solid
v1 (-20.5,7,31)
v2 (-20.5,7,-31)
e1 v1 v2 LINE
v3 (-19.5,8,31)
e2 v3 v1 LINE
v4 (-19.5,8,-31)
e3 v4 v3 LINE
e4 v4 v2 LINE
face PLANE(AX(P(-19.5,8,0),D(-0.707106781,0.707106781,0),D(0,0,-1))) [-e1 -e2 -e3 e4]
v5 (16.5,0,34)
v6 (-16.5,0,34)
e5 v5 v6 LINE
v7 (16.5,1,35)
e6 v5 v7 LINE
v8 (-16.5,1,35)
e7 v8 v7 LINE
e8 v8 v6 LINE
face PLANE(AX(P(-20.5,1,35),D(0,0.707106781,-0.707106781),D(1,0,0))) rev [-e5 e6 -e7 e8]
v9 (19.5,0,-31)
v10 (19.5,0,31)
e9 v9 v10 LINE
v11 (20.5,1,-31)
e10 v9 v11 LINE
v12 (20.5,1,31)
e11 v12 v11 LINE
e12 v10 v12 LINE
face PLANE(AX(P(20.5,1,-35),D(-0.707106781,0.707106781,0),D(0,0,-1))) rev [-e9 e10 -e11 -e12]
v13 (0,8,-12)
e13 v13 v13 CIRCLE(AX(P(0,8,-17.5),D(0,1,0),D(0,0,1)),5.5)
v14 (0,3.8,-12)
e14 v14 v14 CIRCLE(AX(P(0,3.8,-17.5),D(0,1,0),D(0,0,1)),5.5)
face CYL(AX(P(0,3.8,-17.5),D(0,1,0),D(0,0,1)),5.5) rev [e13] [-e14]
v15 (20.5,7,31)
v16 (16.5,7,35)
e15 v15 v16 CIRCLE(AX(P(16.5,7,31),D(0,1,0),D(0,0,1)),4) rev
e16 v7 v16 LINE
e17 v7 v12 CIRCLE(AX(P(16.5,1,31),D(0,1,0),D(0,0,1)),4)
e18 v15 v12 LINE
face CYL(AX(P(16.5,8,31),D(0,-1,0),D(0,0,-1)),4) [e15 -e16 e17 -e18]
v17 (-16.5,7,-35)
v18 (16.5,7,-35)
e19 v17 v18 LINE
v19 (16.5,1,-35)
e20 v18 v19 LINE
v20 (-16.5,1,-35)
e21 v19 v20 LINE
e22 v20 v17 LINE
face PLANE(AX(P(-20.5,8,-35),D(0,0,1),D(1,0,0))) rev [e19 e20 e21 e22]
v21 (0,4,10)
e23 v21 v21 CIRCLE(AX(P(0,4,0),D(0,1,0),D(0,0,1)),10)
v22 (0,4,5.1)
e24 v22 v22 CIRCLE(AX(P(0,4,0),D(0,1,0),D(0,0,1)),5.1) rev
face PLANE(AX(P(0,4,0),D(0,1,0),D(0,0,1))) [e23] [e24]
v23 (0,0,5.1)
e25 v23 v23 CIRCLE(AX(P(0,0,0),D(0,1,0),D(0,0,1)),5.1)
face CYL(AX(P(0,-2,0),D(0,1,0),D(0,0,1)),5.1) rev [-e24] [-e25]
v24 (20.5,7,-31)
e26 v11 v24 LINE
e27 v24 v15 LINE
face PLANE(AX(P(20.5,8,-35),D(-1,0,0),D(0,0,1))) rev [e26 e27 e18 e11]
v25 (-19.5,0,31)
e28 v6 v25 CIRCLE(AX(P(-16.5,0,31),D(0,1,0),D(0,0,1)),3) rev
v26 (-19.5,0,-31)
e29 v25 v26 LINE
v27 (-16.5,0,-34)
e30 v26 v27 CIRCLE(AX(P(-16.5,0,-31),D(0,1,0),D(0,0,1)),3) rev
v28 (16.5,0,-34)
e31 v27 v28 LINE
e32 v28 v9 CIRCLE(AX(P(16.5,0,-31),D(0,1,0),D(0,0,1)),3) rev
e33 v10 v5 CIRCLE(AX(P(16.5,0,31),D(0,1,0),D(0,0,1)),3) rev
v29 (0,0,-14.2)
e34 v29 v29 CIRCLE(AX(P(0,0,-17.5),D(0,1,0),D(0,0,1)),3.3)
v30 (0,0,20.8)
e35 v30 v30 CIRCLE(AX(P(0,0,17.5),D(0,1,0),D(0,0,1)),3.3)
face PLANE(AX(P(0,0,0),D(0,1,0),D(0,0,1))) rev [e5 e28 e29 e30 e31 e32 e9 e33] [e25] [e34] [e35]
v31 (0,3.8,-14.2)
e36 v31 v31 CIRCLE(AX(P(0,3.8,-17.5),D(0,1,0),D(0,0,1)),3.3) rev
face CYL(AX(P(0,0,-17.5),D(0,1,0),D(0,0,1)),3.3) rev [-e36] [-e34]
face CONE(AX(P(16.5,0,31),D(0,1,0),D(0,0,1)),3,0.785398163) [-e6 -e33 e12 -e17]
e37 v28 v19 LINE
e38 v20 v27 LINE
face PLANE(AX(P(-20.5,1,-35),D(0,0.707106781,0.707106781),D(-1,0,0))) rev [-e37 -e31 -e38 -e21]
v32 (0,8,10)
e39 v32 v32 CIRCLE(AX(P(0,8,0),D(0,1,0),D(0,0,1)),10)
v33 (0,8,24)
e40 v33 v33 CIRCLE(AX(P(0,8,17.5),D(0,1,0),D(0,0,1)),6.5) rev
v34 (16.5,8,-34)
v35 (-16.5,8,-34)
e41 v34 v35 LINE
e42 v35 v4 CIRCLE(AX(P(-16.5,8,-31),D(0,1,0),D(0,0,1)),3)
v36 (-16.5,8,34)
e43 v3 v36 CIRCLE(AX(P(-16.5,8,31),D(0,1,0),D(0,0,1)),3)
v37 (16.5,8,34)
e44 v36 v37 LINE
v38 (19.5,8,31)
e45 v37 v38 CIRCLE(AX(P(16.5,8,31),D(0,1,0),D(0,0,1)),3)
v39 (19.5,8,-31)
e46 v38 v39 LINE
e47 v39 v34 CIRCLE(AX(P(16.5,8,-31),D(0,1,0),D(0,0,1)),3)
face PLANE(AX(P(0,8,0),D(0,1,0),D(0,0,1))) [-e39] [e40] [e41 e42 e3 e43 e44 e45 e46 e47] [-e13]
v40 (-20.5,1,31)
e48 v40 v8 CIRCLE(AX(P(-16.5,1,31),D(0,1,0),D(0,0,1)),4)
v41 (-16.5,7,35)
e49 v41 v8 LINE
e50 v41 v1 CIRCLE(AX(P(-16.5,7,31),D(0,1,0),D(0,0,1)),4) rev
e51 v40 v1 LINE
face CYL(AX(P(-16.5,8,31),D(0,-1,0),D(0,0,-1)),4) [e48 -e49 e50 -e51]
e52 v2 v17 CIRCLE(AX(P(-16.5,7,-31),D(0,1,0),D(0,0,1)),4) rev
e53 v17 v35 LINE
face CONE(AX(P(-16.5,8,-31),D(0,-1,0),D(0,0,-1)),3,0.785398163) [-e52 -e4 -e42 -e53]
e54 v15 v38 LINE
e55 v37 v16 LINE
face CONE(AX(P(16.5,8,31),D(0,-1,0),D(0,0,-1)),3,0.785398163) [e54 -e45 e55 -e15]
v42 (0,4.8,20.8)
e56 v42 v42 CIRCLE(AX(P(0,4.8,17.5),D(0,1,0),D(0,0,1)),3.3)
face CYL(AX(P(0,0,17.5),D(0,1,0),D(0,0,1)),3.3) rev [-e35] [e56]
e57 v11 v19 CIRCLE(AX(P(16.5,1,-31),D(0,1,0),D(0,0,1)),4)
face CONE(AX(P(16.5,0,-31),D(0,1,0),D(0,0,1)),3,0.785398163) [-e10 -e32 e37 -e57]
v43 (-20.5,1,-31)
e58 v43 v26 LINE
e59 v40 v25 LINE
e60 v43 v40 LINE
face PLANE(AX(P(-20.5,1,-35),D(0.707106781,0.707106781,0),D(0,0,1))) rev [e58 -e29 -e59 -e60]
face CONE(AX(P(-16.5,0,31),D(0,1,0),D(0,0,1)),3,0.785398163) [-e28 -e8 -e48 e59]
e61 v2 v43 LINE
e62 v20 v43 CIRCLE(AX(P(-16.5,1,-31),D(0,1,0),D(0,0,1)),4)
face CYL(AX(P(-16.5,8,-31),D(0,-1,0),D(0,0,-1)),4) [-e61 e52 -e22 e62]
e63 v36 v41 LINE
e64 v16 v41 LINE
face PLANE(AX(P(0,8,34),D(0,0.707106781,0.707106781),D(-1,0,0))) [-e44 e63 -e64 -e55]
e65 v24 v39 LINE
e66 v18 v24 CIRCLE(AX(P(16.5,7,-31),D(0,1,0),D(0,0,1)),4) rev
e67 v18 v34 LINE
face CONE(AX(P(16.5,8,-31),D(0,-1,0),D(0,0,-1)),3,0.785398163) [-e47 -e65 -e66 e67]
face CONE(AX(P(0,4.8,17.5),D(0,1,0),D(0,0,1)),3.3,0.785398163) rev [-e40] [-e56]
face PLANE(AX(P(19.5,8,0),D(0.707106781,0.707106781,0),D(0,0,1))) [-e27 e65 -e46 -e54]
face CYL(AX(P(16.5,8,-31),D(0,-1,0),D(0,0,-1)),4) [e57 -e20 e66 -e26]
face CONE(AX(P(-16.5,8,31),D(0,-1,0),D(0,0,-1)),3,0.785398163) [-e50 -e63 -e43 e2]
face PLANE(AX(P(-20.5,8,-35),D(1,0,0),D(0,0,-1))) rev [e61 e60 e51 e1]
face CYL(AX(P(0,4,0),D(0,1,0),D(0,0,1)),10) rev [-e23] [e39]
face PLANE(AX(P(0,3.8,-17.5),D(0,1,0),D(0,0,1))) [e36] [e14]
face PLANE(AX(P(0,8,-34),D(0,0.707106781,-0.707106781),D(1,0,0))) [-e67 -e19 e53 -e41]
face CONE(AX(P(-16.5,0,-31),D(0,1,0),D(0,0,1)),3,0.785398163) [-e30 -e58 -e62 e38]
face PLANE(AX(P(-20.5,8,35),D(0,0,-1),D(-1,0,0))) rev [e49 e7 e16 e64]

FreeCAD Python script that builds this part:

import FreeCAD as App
import Part
import Sketcher

V = App.Vector


def edges_at(feature, points):
    """Names of the edges that pass closest to the given points."""
    edges = feature.Shape.Edges
    near = lambda p: min(range(len(edges)), key=lambda i: edges[i].distToShape(Part.Vertex(*p))[0])
    return sorted({f"Edge{near(p) + 1}" for p in points})


def add_polygon(sketch, points):
    """Adds a closed chain of lines whose ends are joined by coincident constraints."""
    first, n = sketch.GeometryCount, len(points)
    for a, b in zip(points, points[1:] + points[:1]):
        sketch.addGeometry(Part.LineSegment(App.Vector(*a, 0), App.Vector(*b, 0)), False)
    for i in range(n):
        sketch.addConstraint(Sketcher.Constraint("Coincident", first + i, 2, first + (i + 1) % n, 1))

doc = App.newDocument("Part")
body = doc.addObject("PartDesign::Body", "Body")

# Sketch on XZ plane
sketch1 = body.newObject("Sketcher::SketchObject", "Sketch")
sketch1.AttachmentSupport = (doc.getObject("XZ_Plane"), [""])
sketch1.MapMode = "FlatFace"
add_polygon(sketch1, [(-20, -35), (-20, 35), (20, 35), (20, -35)])  # lines 0-3
sketch1.addConstraint([
    Sketcher.Constraint("Vertical", 0),
    Sketcher.Constraint("Horizontal", 1),
    Sketcher.Constraint("Vertical", 2),
    Sketcher.Constraint("Horizontal", 3),
    Sketcher.Constraint("Symmetric", 0, 2, 2, 2, -1, 1),
    Sketcher.Constraint("DistanceX", 1, 1, 1, 2, 41.0),
    Sketcher.Constraint("DistanceY", 0, 1, 0, 2, 70.0),
])
pad1 = body.newObject("PartDesign::Pad", "Pad")
pad1.Profile = sketch1
pad1.Length = 8
pad1.Reversed = True
doc.recompute()

fillet = body.newObject("PartDesign::Fillet", "Fillet")
fillet.Base = (pad1, edges_at(pad1, [
    (20.5, 4, 35),
    (-20.5, 4, 35),
    (-20.5, 4, -35),
    (20.5, 4, -35),
]))
fillet.Radius = 4
doc.recompute()

chamfer = body.newObject("PartDesign::Chamfer", "Chamfer")
chamfer.Base = (fillet, edges_at(fillet, [
    (-20.5, 0, 0),
    (-20.5, 8, 0),
    (20.5, 0, 0),
    (0, 0, 35),
    (0, 0, -35),
    (-19.328, 0, 33.828),
    (19.328, 0, 33.828),
    (19.328, 0, -33.828),
    (-19.328, 0, -33.828),
    (0, 8, -35),
    (20.5, 8, 0),
    (0, 8, 35),
    (-19.328, 8, 33.828),
    (19.328, 8, 33.828),
    (19.328, 8, -33.828),
    (-19.328, 8, -33.828),
]))
chamfer.Size = 1

# Sketch on XZ plane
sketch2 = body.newObject("Sketcher::SketchObject", "Sketch001")
sketch2.AttachmentSupport = (doc.getObject("XZ_Plane"), [""])
sketch2.MapMode = "FlatFace"
sketch2.AttachmentOffset = App.Placement(V(0, 0, -8), App.Rotation())
sketch2.addGeometry([
    Part.Circle(V(0, 17.5, 0), V(0, 0, 1), 3.3),
    Part.Circle(V(0, -17.5, 0), V(0, 0, 1), 3.3),
], False)
sketch2.addConstraint([
    Sketcher.Constraint("Equal", 0, 1),
    Sketcher.Constraint("Symmetric", 0, 3, 1, 3, -1, 1),
    Sketcher.Constraint("PointOnObject", 0, 3, -2),
    Sketcher.Constraint("Diameter", 0, 6.6),
    Sketcher.Constraint("DistanceY", 1, 3, 0, 3, 35.0),
])
pocket1 = body.newObject("PartDesign::Pocket", "Pocket")
pocket1.Profile = sketch2
pocket1.Length = 8
pocket1.Reversed = True
doc.recompute()

chamfer2 = body.newObject("PartDesign::Chamfer", "Chamfer001")
chamfer2.Base = (pocket1, edges_at(pocket1, [(-3.3, 8, 17.5)]))
chamfer2.Size = 3.2

# Sketch on XZ plane
sketch3 = body.newObject("Sketcher::SketchObject", "Sketch002")
sketch3.AttachmentSupport = (doc.getObject("XZ_Plane"), [""])
sketch3.MapMode = "FlatFace"
sketch3.AttachmentOffset = App.Placement(V(0, 0, -8), App.Rotation())
sketch3.addGeometry(Part.Circle(V(0, -18, 0), V(0, 0, 1), 6), False)
sketch3.addConstraint([
    Sketcher.Constraint("PointOnObject", 0, 3, -2),
    Sketcher.Constraint("Diameter", 0, 11.0),
    Sketcher.Constraint("DistanceY", 0, 3, -1, 1, 17.5),
])
pocket2 = body.newObject("PartDesign::Pocket", "Pocket001")
pocket2.Profile = sketch3
pocket2.Length = 4.2
pocket2.Reversed = True

# Sketch on XZ plane
sketch4 = body.newObject("Sketcher::SketchObject", "Sketch003")
sketch4.AttachmentSupport = (doc.getObject("XZ_Plane"), [""])
sketch4.MapMode = "FlatFace"
sketch4.AttachmentOffset = App.Placement(V(0, 0, -8), App.Rotation())
sketch4.addGeometry(Part.Circle(V(0, 0, 0), V(0, 0, 1), 5), False)
sketch4.addConstraint([
    Sketcher.Constraint("Coincident", 0, 3, -1, 1),
    Sketcher.Constraint("Diameter", 0, 10.2),
])
pocket3 = body.newObject("PartDesign::Pocket", "Pocket002")
pocket3.Profile = sketch4
pocket3.Length = 10
pocket3.Reversed = True

# Sketch on XZ plane
sketch5 = body.newObject("Sketcher::SketchObject", "Sketch004")
sketch5.AttachmentSupport = (doc.getObject("XZ_Plane"), [""])
sketch5.MapMode = "FlatFace"
sketch5.AttachmentOffset = App.Placement(V(0, 0, -8), App.Rotation())
sketch5.addGeometry(Part.Circle(V(0, 0, 0), V(0, 0, 1), 10), False)
sketch5.addConstraint([
    Sketcher.Constraint("Coincident", 0, 3, -1, 1),
    Sketcher.Constraint("Diameter", 0, 20.0),
])
pocket4 = body.newObject("PartDesign::Pocket", "Pocket003")
pocket4.Profile = sketch5
pocket4.Length = 4
pocket4.Reversed = True

doc.recompute()
